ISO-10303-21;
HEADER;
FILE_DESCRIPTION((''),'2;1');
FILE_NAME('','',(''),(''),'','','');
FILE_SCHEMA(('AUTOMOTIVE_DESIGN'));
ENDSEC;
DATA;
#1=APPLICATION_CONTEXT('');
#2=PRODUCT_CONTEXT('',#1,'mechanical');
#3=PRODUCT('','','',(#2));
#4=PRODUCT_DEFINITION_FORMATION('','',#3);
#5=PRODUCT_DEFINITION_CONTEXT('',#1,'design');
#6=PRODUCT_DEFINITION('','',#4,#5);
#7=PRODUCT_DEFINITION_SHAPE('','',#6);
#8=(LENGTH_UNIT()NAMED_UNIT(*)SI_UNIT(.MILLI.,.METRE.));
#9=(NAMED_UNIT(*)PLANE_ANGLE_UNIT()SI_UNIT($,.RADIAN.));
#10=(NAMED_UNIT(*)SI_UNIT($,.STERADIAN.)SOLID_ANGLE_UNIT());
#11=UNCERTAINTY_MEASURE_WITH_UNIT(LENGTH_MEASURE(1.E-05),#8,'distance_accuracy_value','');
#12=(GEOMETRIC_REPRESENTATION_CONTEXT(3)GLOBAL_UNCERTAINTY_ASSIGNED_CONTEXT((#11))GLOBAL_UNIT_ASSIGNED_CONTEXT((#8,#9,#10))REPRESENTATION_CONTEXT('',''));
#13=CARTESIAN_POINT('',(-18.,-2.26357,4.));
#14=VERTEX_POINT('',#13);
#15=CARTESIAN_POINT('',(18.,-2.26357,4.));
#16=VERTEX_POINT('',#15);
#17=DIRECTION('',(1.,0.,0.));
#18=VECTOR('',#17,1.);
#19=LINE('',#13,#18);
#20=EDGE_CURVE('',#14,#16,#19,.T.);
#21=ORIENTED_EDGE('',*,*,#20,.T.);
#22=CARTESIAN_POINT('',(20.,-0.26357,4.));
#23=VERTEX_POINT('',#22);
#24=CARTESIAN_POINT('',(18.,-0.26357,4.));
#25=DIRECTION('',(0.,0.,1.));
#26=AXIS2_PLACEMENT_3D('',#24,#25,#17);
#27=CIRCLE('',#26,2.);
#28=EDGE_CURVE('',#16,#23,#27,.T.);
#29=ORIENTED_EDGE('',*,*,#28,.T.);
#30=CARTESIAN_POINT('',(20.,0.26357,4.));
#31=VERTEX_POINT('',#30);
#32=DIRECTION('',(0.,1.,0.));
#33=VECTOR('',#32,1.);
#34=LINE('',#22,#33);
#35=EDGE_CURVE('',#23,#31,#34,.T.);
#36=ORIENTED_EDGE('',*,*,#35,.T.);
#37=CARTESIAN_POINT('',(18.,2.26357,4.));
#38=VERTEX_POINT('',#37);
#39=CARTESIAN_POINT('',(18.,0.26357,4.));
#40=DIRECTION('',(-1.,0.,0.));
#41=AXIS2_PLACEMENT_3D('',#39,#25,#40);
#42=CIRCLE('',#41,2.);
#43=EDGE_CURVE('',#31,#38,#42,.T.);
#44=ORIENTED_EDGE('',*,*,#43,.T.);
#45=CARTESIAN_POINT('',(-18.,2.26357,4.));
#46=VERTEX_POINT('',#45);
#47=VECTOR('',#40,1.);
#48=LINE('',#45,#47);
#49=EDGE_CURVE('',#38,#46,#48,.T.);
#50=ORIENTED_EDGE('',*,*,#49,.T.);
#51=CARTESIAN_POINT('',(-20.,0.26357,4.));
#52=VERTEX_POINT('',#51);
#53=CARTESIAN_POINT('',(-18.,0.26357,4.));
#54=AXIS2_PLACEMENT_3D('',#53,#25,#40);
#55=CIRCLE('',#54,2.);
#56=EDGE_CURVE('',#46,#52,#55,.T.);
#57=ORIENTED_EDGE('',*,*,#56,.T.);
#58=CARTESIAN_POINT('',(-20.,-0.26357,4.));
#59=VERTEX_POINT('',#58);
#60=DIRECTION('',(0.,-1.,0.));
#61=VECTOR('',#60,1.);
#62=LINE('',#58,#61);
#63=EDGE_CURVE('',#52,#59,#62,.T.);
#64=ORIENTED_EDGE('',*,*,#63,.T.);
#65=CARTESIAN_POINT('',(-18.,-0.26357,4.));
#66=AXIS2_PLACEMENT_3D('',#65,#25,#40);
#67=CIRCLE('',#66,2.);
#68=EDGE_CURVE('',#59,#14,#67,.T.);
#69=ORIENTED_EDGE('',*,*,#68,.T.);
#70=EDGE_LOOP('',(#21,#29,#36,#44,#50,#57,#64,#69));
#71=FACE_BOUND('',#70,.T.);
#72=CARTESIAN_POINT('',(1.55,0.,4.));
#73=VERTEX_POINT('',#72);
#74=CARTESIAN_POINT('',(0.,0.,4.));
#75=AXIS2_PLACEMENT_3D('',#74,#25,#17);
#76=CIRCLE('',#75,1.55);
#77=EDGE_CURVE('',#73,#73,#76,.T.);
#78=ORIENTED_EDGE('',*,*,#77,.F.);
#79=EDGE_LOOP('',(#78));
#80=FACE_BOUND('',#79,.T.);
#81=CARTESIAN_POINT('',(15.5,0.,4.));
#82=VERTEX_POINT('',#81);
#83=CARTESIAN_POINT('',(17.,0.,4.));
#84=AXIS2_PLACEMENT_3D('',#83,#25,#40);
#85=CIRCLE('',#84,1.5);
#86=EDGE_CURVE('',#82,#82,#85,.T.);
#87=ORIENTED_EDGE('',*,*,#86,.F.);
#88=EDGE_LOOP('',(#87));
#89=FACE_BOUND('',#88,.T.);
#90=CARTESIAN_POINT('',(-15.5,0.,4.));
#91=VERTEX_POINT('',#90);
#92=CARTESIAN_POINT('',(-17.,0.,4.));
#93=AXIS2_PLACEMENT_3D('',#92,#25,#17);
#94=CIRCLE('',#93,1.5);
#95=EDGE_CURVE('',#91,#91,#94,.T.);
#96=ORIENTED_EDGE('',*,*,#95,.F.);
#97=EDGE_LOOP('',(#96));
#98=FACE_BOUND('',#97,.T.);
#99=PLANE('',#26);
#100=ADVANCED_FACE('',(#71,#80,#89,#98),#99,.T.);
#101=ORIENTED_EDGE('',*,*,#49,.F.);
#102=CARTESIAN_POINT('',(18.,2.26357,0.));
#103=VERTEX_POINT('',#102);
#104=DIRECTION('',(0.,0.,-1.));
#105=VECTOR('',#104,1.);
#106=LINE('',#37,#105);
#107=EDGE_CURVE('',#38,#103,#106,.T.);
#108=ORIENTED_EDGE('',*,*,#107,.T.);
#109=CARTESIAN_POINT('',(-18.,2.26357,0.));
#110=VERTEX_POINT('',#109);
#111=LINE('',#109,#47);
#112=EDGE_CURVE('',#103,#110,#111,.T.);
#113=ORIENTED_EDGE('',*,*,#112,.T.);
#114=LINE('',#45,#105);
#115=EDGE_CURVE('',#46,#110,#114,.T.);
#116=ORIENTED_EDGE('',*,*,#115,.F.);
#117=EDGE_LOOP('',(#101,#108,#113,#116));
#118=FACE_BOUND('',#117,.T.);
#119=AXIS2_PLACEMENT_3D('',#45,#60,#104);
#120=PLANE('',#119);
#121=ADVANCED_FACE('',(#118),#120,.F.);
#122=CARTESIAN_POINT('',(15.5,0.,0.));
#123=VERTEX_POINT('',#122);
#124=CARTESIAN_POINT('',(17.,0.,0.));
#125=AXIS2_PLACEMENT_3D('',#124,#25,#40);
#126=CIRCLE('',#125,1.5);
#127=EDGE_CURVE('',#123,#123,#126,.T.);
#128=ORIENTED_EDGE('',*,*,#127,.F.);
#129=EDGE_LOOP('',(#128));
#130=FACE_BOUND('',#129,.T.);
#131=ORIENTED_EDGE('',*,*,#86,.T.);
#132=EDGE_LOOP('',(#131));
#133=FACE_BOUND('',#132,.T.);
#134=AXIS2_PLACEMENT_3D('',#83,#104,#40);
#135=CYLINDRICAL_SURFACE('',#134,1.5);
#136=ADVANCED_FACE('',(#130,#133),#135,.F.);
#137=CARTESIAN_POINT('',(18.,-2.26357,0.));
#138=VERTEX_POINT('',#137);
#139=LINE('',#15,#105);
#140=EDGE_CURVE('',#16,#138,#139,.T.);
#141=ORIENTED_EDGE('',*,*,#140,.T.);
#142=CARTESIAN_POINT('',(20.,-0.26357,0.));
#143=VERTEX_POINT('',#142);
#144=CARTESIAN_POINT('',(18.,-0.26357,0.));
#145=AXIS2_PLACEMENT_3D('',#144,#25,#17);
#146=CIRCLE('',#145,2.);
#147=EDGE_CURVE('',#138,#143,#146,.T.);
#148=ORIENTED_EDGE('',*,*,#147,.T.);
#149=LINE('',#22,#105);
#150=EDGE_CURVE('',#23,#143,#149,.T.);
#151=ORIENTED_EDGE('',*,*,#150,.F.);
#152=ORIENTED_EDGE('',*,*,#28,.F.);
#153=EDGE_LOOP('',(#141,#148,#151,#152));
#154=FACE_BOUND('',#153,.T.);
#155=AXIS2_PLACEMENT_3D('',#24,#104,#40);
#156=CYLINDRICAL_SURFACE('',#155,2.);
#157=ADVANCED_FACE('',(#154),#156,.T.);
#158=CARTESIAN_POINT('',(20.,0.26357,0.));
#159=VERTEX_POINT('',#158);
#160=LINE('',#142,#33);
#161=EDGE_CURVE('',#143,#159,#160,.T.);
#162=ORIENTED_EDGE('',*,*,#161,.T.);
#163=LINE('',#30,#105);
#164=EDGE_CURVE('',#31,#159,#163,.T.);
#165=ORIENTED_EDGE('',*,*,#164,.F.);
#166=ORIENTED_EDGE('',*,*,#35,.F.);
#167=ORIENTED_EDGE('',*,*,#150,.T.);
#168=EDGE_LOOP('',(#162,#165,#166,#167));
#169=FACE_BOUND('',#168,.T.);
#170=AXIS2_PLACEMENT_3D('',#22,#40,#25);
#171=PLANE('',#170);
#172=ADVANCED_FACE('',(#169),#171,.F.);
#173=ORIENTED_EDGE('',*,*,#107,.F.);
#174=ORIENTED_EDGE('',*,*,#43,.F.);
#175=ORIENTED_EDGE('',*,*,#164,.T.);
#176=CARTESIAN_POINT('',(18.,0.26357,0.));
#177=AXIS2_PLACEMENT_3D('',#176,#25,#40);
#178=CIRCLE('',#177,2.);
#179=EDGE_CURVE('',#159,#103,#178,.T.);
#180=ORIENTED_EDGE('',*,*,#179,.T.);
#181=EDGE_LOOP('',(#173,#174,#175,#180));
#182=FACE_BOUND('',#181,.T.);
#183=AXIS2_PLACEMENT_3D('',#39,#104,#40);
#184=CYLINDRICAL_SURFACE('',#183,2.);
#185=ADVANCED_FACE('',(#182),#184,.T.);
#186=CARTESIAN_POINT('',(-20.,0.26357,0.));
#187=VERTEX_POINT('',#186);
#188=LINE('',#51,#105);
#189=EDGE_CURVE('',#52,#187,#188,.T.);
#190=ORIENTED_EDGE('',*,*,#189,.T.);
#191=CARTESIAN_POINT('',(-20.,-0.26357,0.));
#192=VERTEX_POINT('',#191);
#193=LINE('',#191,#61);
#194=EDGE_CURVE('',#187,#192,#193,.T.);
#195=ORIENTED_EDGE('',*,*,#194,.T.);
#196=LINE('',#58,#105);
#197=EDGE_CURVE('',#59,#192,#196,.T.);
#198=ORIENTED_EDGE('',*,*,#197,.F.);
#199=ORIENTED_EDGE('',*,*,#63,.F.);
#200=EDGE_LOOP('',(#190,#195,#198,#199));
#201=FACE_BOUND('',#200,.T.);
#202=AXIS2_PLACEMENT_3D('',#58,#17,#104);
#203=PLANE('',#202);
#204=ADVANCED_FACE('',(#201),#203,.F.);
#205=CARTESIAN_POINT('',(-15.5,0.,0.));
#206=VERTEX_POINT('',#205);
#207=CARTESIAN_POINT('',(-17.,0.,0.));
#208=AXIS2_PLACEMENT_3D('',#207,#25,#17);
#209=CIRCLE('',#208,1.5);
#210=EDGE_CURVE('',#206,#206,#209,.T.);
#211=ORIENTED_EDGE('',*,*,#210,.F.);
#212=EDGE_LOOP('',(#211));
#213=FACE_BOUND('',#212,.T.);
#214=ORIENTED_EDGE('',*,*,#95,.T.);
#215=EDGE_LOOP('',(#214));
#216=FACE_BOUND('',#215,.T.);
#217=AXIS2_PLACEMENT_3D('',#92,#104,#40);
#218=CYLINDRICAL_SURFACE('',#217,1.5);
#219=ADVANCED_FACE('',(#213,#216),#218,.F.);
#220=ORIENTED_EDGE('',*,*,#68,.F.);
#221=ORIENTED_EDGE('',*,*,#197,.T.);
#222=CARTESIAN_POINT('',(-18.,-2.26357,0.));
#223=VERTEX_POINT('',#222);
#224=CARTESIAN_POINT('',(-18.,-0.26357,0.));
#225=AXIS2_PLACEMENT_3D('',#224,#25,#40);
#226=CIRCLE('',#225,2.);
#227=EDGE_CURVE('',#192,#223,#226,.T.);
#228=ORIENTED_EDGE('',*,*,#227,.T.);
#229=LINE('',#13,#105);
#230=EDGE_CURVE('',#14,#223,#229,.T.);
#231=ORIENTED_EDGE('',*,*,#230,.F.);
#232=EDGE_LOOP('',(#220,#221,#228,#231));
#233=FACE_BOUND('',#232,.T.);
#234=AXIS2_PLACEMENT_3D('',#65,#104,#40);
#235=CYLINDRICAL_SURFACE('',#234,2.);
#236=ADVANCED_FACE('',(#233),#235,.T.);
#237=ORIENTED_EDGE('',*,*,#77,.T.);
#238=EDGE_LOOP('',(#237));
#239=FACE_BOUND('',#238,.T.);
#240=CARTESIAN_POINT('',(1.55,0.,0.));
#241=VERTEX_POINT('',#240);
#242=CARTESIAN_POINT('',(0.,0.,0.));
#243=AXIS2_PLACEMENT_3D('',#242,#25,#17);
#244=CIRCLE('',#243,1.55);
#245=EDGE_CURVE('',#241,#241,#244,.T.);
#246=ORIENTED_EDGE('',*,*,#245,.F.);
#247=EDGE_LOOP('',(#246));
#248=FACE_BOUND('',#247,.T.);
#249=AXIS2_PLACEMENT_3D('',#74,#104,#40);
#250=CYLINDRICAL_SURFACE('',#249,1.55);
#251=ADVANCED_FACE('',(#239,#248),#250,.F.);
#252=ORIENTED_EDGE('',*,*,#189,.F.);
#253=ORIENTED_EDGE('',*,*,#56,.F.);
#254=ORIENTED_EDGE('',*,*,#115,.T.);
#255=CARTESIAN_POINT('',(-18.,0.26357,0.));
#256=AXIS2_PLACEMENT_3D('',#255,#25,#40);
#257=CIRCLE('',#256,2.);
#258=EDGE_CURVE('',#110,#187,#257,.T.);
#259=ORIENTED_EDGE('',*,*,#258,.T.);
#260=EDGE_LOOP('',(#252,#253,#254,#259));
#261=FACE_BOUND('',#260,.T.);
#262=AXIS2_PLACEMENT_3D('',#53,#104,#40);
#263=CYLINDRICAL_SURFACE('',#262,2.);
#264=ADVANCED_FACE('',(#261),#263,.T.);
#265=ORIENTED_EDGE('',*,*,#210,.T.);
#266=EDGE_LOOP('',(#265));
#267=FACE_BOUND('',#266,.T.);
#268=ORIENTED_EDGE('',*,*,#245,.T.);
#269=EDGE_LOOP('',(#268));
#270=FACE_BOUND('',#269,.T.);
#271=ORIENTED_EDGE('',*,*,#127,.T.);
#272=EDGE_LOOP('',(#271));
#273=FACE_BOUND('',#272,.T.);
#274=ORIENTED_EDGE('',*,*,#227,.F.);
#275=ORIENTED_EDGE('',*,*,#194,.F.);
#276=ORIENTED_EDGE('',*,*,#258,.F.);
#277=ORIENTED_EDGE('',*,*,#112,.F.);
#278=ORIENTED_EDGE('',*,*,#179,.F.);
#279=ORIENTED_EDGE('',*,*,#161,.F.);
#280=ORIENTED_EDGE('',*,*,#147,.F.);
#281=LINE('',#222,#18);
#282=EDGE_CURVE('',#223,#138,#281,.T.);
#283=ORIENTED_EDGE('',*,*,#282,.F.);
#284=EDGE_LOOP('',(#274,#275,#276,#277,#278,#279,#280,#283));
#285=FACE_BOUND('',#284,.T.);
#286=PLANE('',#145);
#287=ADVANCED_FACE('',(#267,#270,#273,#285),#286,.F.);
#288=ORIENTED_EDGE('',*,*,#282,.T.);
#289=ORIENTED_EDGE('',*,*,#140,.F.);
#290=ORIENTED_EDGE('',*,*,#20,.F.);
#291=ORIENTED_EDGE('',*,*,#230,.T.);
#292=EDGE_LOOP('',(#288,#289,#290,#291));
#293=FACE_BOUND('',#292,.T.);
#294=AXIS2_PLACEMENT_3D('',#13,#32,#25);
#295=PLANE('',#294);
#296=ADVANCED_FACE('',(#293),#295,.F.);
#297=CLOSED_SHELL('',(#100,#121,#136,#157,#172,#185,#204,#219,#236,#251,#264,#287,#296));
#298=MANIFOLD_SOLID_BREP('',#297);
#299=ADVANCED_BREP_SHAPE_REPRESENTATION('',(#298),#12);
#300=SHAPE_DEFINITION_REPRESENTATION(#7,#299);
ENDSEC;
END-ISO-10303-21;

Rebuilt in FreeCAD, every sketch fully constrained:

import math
import FreeCAD as App
import Part
import Sketcher

V = App.Vector

doc = App.newDocument("Part")
body = doc.addObject("PartDesign::Body", "Body")

# Sketch on XY plane
sketch1 = body.newObject("Sketcher::SketchObject", "Sketch")
sketch1.AttachmentSupport = (doc.getObject("XY_Plane"), [""])
sketch1.MapMode = "FlatFace"
sketch1.addGeometry([
    Part.LineSegment(V(-18, -2.3, 0), V(18, -2.3, 0)),  # 0
    Part.ArcOfCircle(Part.Circle(V(18, -0.3, 0), V(0, 0, 1), 2), math.radians(-90), math.radians(0)),  # 1
    Part.LineSegment(V(20, -0.3, 0), V(20, 0.3, 0)),  # 2
    Part.ArcOfCircle(Part.Circle(V(18, 0.3, 0), V(0, 0, 1), 2), math.radians(0), math.radians(90)),  # 3
    Part.LineSegment(V(18, 2.3, 0), V(-18, 2.3, 0)),  # 4
    Part.ArcOfCircle(Part.Circle(V(-18, 0.3, 0), V(0, 0, 1), 2), math.radians(90), math.radians(180)),  # 5
    Part.LineSegment(V(-20, 0.3, 0), V(-20, -0.3, 0)),  # 6
    Part.ArcOfCircle(Part.Circle(V(-18, -0.3, 0), V(0, 0, 1), 2), math.radians(180), math.radians(270)),  # 7
    Part.Circle(V(-17, 0, 0), V(0, 0, 1), 1.5),  # 8
    Part.Circle(V(0, 0, 0), V(0, 0, 1), 1.6),  # 9
    Part.Circle(V(17, 0, 0), V(0, 0, 1), 1.5),  # 10
], False)
sketch1.addConstraint([
    Sketcher.Constraint("Tangent", 0, 2, 1, 1),
    Sketcher.Constraint("Tangent", 1, 2, 2, 1),
    Sketcher.Constraint("Tangent", 2, 2, 3, 1),
    Sketcher.Constraint("Tangent", 3, 2, 4, 1),
    Sketcher.Constraint("Tangent", 4, 2, 5, 1),
    Sketcher.Constraint("Tangent", 5, 2, 6, 1),
    Sketcher.Constraint("Tangent", 6, 2, 7, 1),
    Sketcher.Constraint("Tangent", 7, 2, 0, 1),
    Sketcher.Constraint("Horizontal", 0),
    Sketcher.Constraint("Vertical", 2),
    Sketcher.Constraint("Horizontal", 4),
    Sketcher.Constraint("Vertical", 6),
    Sketcher.Constraint("Coincident", 9, 3, -1, 1),
    Sketcher.Constraint("Equal", 1, 3),
    Sketcher.Constraint("Equal", 3, 5),
    Sketcher.Constraint("Equal", 5, 7),
    Sketcher.Constraint("Equal", 8, 10),
    Sketcher.Constraint("Symmetric", 1, 3, 5, 3, -1, 1),
    Sketcher.Constraint("Symmetric", 8, 3, 10, 3, -1, 1),
    Sketcher.Constraint("PointOnObject", 8, 3, -1),
    Sketcher.Constraint("Diameter", 8, 3.0),
    Sketcher.Constraint("Radius", 1, 2.0),
    Sketcher.Constraint("Diameter", 9, 3.1),
    Sketcher.Constraint("DistanceX", 0, 1, 0, 2, 36.0),
    Sketcher.Constraint("DistanceX", 8, 3, -1, 1, 17.0),
    Sketcher.Constraint("DistanceY", 2, 1, 2, 2, 0.52714),
])
pad1 = body.newObject("PartDesign::Pad", "Pad")
pad1.Profile = sketch1
pad1.Length = 4

doc.recompute()
